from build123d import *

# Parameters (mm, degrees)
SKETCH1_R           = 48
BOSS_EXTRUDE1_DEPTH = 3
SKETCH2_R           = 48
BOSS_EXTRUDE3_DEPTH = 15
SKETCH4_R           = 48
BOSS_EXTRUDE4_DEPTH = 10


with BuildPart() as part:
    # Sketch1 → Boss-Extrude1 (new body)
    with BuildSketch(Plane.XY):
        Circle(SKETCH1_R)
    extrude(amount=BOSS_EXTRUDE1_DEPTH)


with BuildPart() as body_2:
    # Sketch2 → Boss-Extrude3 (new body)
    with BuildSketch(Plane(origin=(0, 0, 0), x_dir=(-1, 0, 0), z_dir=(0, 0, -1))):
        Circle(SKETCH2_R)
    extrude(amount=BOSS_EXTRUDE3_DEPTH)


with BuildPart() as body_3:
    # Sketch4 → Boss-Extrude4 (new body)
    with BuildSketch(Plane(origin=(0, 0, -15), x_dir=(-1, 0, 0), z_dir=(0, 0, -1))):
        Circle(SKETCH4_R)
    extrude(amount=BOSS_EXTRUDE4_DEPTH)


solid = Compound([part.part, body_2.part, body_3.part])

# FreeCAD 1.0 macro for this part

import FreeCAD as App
import Part
import Sketcher

doc = App.newDocument("Part")
params = doc.addObject("Spreadsheet::Sheet", "Params")
for row, (alias, value) in enumerate([
    ("sketch1_diameter", "96 mm"),
    ("pad1_length", "3 mm"),
    ("sketch2_diameter", "96 mm"),
    ("pad2_length", "15 mm"),
    ("sketch3_diameter", "96 mm"),
    ("pad3_length", "10 mm"),
], start=1):
    params.set(f"A{row}", alias)
    params.set(f"B{row}", "=" + value)
    params.setAlias(f"B{row}", alias)

body = doc.addObject("PartDesign::Body", "Body")

sketch1 = doc.addObject("Sketcher::SketchObject", "Sketch")
body.addObject(sketch1)
sketch1.AttachmentSupport = (doc.XY_Plane, [""])
sketch1.MapMode = "FlatFace"
sketch1.addGeometry(Part.Circle(App.Vector(0, 0, 0), App.Vector(0, 0, 1), 48), False)
sketch1.addConstraint(Sketcher.Constraint("Coincident", 0, 3, -1, 1))
sketch1.addConstraint(Sketcher.Constraint("Diameter", 0, 96.0))
sketch1.setExpression("Constraints[1]", "Params.sketch1_diameter")
pad1 = doc.addObject("PartDesign::Pad", "Pad")
body.addObject(pad1)
pad1.Profile = sketch1
pad1.setExpression("Length", "Params.pad1_length")
body2 = doc.addObject("PartDesign::Body", "Body001")

sketch2 = doc.addObject("Sketcher::SketchObject", "Sketch001")
body2.addObject(sketch2)
sketch2.AttachmentSupport = (doc.getObject("XY_Plane001"), [""])
sketch2.MapMode = "FlatFace"
sketch2.addGeometry(Part.Circle(App.Vector(0, 0, 0), App.Vector(0, 0, 1), 48), False)
sketch2.addConstraint(Sketcher.Constraint("Coincident", 0, 3, -1, 1))
sketch2.addConstraint(Sketcher.Constraint("Diameter", 0, 96.0))
sketch2.setExpression("Constraints[1]", "Params.sketch2_diameter")
pad2 = doc.addObject("PartDesign::Pad", "Pad001")
body2.addObject(pad2)
pad2.Profile = sketch2
pad2.setExpression("Length", "Params.pad2_length")
pad2.Reversed = True
body3 = doc.addObject("PartDesign::Body", "Body002")

sketch3 = doc.addObject("Sketcher::SketchObject", "Sketch002")
body3.addObject(sketch3)
sketch3.AttachmentSupport = (doc.getObject("XY_Plane002"), [""])
sketch3.MapMode = "FlatFace"
sketch3.AttachmentOffset = App.Placement(App.Vector(0, 0, -15), App.Rotation())
sketch3.addGeometry(Part.Circle(App.Vector(0, 0, 0), App.Vector(0, 0, 1), 48), False)
sketch3.addConstraint(Sketcher.Constraint("Coincident", 0, 3, -1, 1))
sketch3.addConstraint(Sketcher.Constraint("Diameter", 0, 96.0))
sketch3.setExpression("Constraints[1]", "Params.sketch3_diameter")
pad3 = doc.addObject("PartDesign::Pad", "Pad002")
body3.addObject(pad3)
pad3.Profile = sketch3
pad3.setExpression("Length", "Params.pad3_length")
pad3.Reversed = True

doc.recompute()
